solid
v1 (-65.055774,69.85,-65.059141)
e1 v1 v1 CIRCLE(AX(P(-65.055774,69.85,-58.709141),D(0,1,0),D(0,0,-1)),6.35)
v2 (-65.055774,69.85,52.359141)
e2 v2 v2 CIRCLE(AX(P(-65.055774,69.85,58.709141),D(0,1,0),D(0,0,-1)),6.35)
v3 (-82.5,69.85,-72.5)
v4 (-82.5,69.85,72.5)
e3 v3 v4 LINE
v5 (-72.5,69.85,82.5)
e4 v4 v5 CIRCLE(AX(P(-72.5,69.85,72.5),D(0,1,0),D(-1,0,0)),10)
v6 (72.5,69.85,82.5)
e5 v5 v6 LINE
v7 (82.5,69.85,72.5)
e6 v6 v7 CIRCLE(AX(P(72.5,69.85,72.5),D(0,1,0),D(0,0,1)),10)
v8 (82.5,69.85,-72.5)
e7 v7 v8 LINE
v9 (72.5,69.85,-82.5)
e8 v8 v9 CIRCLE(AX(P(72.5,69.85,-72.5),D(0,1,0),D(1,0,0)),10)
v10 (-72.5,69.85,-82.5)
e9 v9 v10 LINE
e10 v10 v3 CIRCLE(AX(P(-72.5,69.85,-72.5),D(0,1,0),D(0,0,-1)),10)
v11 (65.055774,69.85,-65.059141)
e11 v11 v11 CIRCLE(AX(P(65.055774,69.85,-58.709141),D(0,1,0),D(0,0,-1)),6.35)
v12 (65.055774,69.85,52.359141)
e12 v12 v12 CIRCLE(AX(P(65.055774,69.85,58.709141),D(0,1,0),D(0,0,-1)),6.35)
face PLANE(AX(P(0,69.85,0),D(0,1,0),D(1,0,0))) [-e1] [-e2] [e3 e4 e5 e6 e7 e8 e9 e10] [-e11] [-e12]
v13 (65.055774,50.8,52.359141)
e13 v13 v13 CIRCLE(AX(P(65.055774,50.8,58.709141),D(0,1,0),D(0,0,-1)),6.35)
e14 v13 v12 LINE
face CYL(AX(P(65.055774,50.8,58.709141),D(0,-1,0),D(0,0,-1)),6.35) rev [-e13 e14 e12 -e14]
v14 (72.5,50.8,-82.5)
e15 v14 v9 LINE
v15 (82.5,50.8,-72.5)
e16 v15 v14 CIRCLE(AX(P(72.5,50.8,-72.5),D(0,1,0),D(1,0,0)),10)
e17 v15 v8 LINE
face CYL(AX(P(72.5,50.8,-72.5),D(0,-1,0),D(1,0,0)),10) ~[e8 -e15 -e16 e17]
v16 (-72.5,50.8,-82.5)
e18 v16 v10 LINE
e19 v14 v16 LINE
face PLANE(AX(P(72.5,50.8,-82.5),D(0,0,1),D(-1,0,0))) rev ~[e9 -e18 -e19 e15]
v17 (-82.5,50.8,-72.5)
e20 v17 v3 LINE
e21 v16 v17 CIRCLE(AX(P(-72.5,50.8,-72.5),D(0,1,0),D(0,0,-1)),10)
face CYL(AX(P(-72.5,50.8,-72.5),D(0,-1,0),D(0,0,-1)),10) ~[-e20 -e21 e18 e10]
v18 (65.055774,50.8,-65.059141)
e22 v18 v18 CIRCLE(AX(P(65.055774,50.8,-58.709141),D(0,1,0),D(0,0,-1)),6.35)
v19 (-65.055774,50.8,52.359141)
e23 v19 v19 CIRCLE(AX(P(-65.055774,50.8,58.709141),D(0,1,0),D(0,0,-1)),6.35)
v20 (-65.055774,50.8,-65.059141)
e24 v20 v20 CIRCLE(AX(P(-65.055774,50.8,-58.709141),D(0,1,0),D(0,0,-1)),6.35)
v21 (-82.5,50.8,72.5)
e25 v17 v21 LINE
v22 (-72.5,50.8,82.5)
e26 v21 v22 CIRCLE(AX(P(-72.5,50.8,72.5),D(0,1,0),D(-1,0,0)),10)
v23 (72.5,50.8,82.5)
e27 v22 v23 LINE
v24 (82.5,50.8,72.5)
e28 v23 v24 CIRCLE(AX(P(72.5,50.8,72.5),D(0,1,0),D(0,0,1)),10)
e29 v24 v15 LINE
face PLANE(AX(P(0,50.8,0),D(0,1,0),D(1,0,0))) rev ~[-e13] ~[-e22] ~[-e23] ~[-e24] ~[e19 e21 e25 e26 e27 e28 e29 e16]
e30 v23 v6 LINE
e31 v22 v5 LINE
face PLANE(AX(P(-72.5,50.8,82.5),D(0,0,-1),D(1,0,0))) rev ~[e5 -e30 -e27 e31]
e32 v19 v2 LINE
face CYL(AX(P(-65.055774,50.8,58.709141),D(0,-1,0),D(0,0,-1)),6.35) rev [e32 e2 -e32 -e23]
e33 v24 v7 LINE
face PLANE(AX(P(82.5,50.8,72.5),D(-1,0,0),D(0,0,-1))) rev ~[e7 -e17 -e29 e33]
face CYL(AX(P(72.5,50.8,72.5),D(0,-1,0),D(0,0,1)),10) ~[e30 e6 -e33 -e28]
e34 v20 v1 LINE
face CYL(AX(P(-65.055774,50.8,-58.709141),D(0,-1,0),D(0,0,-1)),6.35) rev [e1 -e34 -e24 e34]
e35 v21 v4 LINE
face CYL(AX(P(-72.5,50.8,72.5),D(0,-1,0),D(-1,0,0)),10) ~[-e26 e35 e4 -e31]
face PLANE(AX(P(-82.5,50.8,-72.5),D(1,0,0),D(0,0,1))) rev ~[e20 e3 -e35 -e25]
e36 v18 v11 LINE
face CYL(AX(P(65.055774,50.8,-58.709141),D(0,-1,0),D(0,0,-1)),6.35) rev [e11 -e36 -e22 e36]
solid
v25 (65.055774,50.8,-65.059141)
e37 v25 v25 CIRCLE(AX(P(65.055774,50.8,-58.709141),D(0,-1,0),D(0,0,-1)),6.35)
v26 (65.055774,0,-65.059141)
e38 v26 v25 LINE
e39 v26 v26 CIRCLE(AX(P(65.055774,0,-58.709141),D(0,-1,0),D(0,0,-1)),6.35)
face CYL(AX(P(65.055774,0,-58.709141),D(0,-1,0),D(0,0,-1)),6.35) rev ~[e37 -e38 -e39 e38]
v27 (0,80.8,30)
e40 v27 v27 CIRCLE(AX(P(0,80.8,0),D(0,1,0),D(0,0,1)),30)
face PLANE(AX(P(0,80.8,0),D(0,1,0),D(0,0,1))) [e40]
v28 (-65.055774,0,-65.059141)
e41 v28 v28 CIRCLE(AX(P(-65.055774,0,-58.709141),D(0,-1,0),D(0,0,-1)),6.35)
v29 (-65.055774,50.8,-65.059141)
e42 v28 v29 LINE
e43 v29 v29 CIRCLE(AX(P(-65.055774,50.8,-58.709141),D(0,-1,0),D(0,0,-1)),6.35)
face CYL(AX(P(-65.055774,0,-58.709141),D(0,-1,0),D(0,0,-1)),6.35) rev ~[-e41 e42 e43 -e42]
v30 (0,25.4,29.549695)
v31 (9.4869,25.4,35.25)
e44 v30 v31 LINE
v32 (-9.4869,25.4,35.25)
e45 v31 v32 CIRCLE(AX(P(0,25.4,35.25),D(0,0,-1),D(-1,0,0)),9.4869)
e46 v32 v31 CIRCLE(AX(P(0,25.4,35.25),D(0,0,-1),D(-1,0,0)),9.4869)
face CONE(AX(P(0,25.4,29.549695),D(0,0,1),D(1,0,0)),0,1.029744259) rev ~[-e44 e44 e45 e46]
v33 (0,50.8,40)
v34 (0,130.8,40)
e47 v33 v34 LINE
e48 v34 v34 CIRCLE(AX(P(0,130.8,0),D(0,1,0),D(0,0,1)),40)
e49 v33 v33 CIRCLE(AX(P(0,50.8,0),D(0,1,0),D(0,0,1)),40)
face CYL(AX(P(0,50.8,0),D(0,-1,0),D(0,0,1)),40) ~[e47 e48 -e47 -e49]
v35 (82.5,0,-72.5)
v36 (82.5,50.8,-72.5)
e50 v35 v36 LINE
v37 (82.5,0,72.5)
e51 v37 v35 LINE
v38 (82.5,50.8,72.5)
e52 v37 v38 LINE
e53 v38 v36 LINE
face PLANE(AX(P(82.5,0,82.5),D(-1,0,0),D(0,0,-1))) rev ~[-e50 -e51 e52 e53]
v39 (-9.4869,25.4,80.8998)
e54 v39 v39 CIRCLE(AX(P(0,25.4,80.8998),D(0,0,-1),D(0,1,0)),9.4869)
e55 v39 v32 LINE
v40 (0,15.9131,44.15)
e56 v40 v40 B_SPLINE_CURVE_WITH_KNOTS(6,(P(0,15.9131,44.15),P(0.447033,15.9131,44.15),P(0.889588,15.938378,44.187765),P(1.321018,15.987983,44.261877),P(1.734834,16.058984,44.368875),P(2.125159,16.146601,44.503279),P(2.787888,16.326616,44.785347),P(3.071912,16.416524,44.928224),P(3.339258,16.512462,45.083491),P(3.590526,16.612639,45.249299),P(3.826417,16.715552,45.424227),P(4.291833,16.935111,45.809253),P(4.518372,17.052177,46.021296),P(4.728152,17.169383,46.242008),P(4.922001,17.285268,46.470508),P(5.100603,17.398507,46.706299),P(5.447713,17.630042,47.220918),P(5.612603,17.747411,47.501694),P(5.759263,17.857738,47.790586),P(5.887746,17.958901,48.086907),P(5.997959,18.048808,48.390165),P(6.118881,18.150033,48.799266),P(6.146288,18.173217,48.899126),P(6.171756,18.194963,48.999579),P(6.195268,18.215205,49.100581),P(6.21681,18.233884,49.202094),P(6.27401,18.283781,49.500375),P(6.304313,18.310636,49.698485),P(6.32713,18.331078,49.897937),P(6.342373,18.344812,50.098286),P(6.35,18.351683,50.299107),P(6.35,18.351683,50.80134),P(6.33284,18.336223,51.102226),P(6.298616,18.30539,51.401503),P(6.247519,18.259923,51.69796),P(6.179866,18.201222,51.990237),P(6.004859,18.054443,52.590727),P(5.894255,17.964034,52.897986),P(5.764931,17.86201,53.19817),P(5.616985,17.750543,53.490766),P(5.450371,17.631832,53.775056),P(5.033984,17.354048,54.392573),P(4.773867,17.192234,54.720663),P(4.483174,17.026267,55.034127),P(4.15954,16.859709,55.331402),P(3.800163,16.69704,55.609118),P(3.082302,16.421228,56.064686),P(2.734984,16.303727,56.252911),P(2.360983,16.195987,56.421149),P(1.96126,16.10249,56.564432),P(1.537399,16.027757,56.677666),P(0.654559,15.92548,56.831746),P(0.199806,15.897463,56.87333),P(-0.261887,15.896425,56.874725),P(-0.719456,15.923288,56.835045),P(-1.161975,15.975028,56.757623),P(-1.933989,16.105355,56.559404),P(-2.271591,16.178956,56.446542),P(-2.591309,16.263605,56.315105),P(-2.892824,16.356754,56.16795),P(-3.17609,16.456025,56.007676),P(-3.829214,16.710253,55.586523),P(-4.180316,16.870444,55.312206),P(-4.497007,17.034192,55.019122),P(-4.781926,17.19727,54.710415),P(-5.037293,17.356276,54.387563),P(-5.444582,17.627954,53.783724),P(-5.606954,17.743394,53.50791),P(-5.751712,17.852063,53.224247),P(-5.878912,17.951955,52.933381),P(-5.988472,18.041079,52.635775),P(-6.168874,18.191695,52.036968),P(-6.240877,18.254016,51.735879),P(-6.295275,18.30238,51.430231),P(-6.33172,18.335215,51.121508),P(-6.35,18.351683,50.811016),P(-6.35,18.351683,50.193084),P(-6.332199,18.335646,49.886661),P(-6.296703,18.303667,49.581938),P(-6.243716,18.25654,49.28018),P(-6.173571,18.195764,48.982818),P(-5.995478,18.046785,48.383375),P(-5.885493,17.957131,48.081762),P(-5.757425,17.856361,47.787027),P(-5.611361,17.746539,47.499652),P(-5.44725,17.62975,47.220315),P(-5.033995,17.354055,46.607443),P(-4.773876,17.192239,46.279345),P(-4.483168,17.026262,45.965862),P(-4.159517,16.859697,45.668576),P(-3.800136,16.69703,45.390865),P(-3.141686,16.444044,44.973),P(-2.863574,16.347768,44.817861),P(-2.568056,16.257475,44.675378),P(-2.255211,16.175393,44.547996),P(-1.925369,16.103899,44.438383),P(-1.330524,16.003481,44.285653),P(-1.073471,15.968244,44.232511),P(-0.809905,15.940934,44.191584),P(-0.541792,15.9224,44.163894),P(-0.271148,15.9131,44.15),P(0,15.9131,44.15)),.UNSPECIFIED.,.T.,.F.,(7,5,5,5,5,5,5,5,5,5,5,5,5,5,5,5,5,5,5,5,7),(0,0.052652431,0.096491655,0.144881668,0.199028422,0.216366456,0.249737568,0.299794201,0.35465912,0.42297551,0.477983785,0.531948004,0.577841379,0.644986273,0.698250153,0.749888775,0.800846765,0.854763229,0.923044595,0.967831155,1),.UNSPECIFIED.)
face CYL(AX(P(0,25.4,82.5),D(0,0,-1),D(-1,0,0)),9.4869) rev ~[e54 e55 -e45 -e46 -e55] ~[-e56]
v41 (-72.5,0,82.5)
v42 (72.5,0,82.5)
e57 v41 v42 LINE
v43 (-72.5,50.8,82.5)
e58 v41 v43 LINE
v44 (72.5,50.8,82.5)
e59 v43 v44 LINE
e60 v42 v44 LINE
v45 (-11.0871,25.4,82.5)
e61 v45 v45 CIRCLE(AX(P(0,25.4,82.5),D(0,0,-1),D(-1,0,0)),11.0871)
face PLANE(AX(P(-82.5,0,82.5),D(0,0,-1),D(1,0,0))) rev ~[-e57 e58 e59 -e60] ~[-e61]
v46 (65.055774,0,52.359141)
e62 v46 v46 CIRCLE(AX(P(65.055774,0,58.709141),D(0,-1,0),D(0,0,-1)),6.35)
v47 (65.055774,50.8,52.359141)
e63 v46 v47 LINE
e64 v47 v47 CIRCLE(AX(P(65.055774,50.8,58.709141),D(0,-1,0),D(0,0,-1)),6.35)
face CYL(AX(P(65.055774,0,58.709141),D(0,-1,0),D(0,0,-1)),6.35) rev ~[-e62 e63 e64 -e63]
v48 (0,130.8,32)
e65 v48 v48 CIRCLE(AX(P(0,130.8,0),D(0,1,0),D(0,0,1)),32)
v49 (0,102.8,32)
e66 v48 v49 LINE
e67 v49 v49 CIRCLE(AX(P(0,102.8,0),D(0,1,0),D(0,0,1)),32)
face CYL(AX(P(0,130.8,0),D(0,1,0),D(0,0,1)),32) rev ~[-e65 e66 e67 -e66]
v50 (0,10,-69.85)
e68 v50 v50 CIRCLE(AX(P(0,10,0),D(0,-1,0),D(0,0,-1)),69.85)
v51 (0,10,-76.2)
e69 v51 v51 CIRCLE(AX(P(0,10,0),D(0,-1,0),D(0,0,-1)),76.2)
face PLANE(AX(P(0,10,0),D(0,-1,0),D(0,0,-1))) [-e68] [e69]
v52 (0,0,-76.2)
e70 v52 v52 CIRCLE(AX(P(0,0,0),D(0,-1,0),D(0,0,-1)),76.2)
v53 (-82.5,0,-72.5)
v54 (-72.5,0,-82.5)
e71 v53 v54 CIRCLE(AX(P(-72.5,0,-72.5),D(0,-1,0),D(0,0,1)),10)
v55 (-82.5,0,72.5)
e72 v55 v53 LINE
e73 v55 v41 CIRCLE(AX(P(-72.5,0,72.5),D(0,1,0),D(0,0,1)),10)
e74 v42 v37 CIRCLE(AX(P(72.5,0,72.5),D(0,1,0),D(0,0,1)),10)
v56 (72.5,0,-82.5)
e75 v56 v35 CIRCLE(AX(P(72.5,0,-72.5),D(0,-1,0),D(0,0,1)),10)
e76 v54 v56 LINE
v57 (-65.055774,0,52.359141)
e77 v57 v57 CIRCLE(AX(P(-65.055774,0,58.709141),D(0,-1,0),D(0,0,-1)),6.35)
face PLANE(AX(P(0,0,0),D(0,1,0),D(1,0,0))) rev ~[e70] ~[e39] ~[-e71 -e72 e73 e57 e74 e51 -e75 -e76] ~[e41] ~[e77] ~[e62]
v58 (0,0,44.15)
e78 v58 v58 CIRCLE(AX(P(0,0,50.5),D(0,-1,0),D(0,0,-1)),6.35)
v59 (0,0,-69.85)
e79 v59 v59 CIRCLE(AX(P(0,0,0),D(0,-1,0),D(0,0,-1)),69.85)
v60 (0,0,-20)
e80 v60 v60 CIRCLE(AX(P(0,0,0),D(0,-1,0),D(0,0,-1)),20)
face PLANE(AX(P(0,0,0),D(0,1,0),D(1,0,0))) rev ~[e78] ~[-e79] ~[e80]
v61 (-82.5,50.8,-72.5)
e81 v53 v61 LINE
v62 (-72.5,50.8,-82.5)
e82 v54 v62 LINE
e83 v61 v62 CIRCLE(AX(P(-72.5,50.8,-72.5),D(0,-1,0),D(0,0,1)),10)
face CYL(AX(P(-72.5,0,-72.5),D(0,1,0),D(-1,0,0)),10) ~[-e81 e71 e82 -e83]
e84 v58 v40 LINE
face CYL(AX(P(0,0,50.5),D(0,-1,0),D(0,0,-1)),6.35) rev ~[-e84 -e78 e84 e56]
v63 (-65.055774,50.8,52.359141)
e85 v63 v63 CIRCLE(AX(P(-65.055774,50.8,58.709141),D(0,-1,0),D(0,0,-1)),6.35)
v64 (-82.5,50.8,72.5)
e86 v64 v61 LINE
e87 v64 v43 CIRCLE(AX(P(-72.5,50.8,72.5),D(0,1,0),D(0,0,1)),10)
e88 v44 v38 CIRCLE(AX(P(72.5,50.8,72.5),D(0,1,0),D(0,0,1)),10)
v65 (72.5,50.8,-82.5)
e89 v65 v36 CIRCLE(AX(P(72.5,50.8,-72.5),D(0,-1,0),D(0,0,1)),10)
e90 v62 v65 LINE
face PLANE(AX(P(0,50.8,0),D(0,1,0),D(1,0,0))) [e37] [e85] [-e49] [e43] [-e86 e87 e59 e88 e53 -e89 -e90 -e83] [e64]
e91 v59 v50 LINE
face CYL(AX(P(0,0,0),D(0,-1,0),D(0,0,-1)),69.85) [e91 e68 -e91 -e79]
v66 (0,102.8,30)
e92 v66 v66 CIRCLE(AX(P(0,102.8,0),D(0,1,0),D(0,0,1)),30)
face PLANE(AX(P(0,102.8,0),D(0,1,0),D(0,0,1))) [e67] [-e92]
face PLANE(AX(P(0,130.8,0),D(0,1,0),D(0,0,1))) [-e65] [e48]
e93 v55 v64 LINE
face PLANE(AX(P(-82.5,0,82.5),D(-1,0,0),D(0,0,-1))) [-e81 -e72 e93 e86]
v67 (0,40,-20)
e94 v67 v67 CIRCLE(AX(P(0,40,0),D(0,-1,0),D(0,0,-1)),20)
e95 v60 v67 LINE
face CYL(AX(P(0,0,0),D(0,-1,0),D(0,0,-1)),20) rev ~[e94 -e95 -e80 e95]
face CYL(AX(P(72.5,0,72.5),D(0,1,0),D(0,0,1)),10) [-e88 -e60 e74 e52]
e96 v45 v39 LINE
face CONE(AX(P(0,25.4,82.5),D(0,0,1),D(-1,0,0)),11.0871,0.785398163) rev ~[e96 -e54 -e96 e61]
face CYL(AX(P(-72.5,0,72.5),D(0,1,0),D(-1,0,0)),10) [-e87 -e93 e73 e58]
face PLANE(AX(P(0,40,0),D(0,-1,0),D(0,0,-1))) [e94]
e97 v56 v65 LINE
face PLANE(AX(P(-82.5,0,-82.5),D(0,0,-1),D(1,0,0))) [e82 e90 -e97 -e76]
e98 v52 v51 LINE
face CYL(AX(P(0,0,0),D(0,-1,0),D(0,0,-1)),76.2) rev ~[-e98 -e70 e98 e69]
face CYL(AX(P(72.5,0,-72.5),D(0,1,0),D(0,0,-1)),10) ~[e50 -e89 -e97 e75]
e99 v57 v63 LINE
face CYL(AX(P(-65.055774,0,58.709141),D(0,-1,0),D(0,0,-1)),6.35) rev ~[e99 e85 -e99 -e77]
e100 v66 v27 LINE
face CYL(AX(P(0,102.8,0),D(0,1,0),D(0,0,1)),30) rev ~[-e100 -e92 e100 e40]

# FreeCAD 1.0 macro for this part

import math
import FreeCAD as App
import Part
import Sketcher
from FreeCAD import Vector
Q = App.Units.Quantity


def edges_at(feature, points):
    """Names of the edges that pass closest to the given points."""
    edges = feature.Shape.Edges
    near = lambda p: min(range(len(edges)), key=lambda i: edges[i].distToShape(Part.Vertex(*p))[0])
    return sorted({f"Edge{near(p) + 1}" for p in points})


def add_polygon(sketch, points):
    """Adds a closed chain of lines whose ends are joined by coincident constraints."""
    first, n = sketch.GeometryCount, len(points)
    for a, b in zip(points, points[1:] + points[:1]):
        sketch.addGeometry(Part.LineSegment(App.Vector(*a, 0), App.Vector(*b, 0)), False)
    for i in range(n):
        sketch.addConstraint(Sketcher.Constraint("Coincident", first + i, 2, first + (i + 1) % n, 1))

doc = App.newDocument("Part")
body = doc.addObject("PartDesign::Body", "Body")

# Sketch on XZ plane
sketch1 = body.newObject("Sketcher::SketchObject", "Sketch")
sketch1.AttachmentSupport = (doc.getObject("XZ_Plane"), [""])
sketch1.MapMode = "FlatFace"
add_polygon(sketch1, [(-82, -82), (-82, 82), (82, 82), (82, -82)])  # lines 0-3
sketch1.addConstraint([
    Sketcher.Constraint("Vertical", 0),
    Sketcher.Constraint("Horizontal", 1),
    Sketcher.Constraint("Vertical", 2),
    Sketcher.Constraint("Horizontal", 3),
    Sketcher.Constraint("Symmetric", 0, 2, 2, 2, -1, 1),
    Sketcher.Constraint("Equal", 3, 0),
    Sketcher.Constraint("DistanceX", 1, 1, 1, 2, Q("165 mm")),
])
pad1 = body.newObject("PartDesign::Pad", "Pad")
pad1.Profile = sketch1
pad1.Length = 50.8
pad1.Reversed = True

# Sketch on XZ plane
sketch2 = body.newObject("Sketcher::SketchObject", "Sketch001")
sketch2.AttachmentSupport = (doc.getObject("XZ_Plane"), [""])
sketch2.MapMode = "FlatFace"
sketch2.AttachmentOffset = App.Placement(Vector(0, 0, -50.8), App.Rotation())
sketch2.addGeometry(Part.Circle(Vector(0, 0, 0), Vector(0, 0, 1), 40), False)
sketch2.addConstraint([
    Sketcher.Constraint("Coincident", 0, 3, -1, 1),
    Sketcher.Constraint("Diameter", 0, Q("80 mm")),
])
pad2 = body.newObject("PartDesign::Pad", "Pad001")
pad2.Profile = sketch2
pad2.Length = 80
pad2.Reversed = True

# Sketch on XZ plane
sketch3 = body.newObject("Sketcher::SketchObject", "Sketch002")
sketch3.AttachmentSupport = (doc.getObject("XZ_Plane"), [""])
sketch3.MapMode = "FlatFace"
sketch3.AttachmentOffset = App.Placement(Vector(0, 0, -130.8), App.Rotation())
sketch3.addGeometry(Part.Circle(Vector(0, 0, 0), Vector(0, 0, 1), 32), False)
sketch3.addConstraint([
    Sketcher.Constraint("Coincident", 0, 3, -1, 1),
    Sketcher.Constraint("Diameter", 0, Q("64 mm")),
])
pocket1 = body.newObject("PartDesign::Pocket", "Pocket")
pocket1.Profile = sketch3
pocket1.Length = 28
pocket1.Reversed = True

# Sketch on XZ plane
sketch4 = body.newObject("Sketcher::SketchObject", "Sketch003")
sketch4.AttachmentSupport = (doc.getObject("XZ_Plane"), [""])
sketch4.MapMode = "FlatFace"
sketch4.AttachmentOffset = App.Placement(Vector(0, 0, -102.8), App.Rotation())
sketch4.addGeometry(Part.Circle(Vector(0, 0, 0), Vector(0, 0, 1), 30), False)
sketch4.addConstraint([
    Sketcher.Constraint("Coincident", 0, 3, -1, 1),
    Sketcher.Constraint("Diameter", 0, Q("60 mm")),
])
pocket2 = body.newObject("PartDesign::Pocket", "Pocket001")
pocket2.Profile = sketch4
pocket2.Length = 22
pocket2.Reversed = True
doc.recompute()

fillet = body.newObject("PartDesign::Fillet", "Fillet")
fillet.Base = (pocket2, edges_at(pocket2, [
    (82.5, 25.4, 82.5),
    (-82.5, 25.4, 82.5),
    (-82.5, 25.4, -82.5),
    (82.5, 25.4, -82.5),
]))
fillet.Radius = 10

# Sketch on XZ plane
sketch5 = body.newObject("Sketcher::SketchObject", "Sketch004")
sketch5.AttachmentSupport = (doc.getObject("XZ_Plane"), [""])
sketch5.MapMode = "FlatFace"
sketch5.addGeometry(Part.Circle(Vector(0, 0, 0), Vector(0, 0, 1), 20), False)
sketch5.addConstraint([
    Sketcher.Constraint("Coincident", 0, 3, -1, 1),
    Sketcher.Constraint("Diameter", 0, Q("40 mm")),
])
pocket3 = body.newObject("PartDesign::Pocket", "Pocket002")
pocket3.Profile = sketch5
pocket3.Length = 40

# Sketch on XZ plane
sketch6 = body.newObject("Sketcher::SketchObject", "Sketch005")
sketch6.AttachmentSupport = (doc.getObject("XZ_Plane"), [""])
sketch6.MapMode = "FlatFace"
sketch6.addGeometry([
    Part.Circle(Vector(0, 0, 0), Vector(0, 0, 1), 76),
    Part.Circle(Vector(0, 0, 0), Vector(0, 0, 1), 70),
], False)
sketch6.addConstraint([
    Sketcher.Constraint("Coincident", 0, 3, -1, 1),
    Sketcher.Constraint("Coincident", 1, 3, -1, 1),
    Sketcher.Constraint("Diameter", 0, Q("152.4 mm")),
    Sketcher.Constraint("Diameter", 1, Q("139.7 mm")),
])
pocket4 = body.newObject("PartDesign::Pocket", "Pocket003")
pocket4.Profile = sketch6
pocket4.Length = 10

# Sketch on XY plane
sketch7 = body.newObject("Sketcher::SketchObject", "Sketch006")
sketch7.AttachmentSupport = (doc.getObject("XY_Plane"), [""])
sketch7.MapMode = "FlatFace"
sketch7.AttachmentOffset = App.Placement(Vector(0, 0, 82.5), App.Rotation())
sketch7.addGeometry(Part.Circle(Vector(0, 25, 0), Vector(0, 0, 1), 9), False)
sketch7.addConstraint([
    Sketcher.Constraint("PointOnObject", 0, 3, -2),
    Sketcher.Constraint("Diameter", 0, Q("18.9738 mm")),
    Sketcher.Constraint("DistanceY", -1, 1, 0, 3, Q("25.4 mm")),
])
doc.recompute()
hole = body.newObject("PartDesign::Hole", "Hole")
hole.Profile = sketch7
hole.ThreadType = "None"
hole.Diameter = 18.9738
hole.DepthType = "Dimension"
hole.Depth = 47.25
hole.DrillPoint = "Angled"
hole.DrillPointAngle = 118
hole.HoleCutType = "Countersink"
hole.HoleCutDiameter = 22.1742
hole.HoleCutCountersinkAngle = 90

# Sketch on XZ plane
sketch8 = body.newObject("Sketcher::SketchObject", "Sketch007")
sketch8.AttachmentSupport = (doc.getObject("XZ_Plane"), [""])
sketch8.MapMode = "FlatFace"
sketch8.addGeometry(Part.Circle(Vector(0, 50, 0), Vector(0, 0, 1), 6), False)
sketch8.addConstraint([
    Sketcher.Constraint("PointOnObject", 0, 3, -2),
    Sketcher.Constraint("Diameter", 0, Q("12.7 mm")),
    Sketcher.Constraint("DistanceY", -1, 1, 0, 3, Q("50.5 mm")),
])
pocket5 = body.newObject("PartDesign::Pocket", "Pocket004")
pocket5.Profile = sketch8
pocket5.Length = 25

# Sketch on XZ plane
sketch9 = body.newObject("Sketcher::SketchObject", "Sketch008")
sketch9.AttachmentSupport = (doc.getObject("XZ_Plane"), [""])
sketch9.MapMode = "FlatFace"
sketch9.addGeometry([
    Part.Circle(Vector(-65, 59, 0), Vector(0, 0, 1), 6),
    Part.Circle(Vector(-65, -59, 0), Vector(0, 0, 1), 6),
    Part.Circle(Vector(65, -59, 0), Vector(0, 0, 1), 6),
    Part.Circle(Vector(65, 59, 0), Vector(0, 0, 1), 6),
], False)
sketch9.addConstraint([
    Sketcher.Constraint("Equal", 0, 1),
    Sketcher.Constraint("Equal", 1, 2),
    Sketcher.Constraint("Equal", 2, 3),
    Sketcher.Constraint("Symmetric", 0, 3, 2, 3, -1, 1),
    Sketcher.Constraint("Symmetric", 1, 3, 3, 3, -1, 1),
    Sketcher.Constraint("Symmetric", 1, 3, 2, 3, -2),
    Sketcher.Constraint("Diameter", 0, Q("12.7 mm")),
    Sketcher.Constraint("DistanceY", -1, 1, 0, 3, Q("58.709141 mm")),
    Sketcher.Constraint("DistanceX", 0, 3, -1, 1, Q("65.055774 mm")),
])
pocket6 = body.newObject("PartDesign::Pocket", "Pocket005")
pocket6.Profile = sketch9
pocket6.Type = "ThroughAll"
body2 = doc.addObject("PartDesign::Body", "Body001")

# Sketch on XZ plane
sketch10 = body2.newObject("Sketcher::SketchObject", "Sketch009")
sketch10.AttachmentSupport = (doc.getObject("XZ_Plane001"), [""])
sketch10.MapMode = "FlatFace"
sketch10.AttachmentOffset = App.Placement(Vector(0, 0, -50.8), App.Rotation())
sketch10.addGeometry([
    Part.LineSegment(Vector(-72, 82, 0), Vector(72, 82, 0)),  # 0
    Part.ArcOfCircle(Part.Circle(Vector(72, 72, 0), Vector(0, 0, 1), 10), math.radians(0), math.radians(90)),  # 1
    Part.LineSegment(Vector(82, 72, 0), Vector(82, -72, 0)),  # 2
    Part.ArcOfCircle(Part.Circle(Vector(72, -72, 0), Vector(0, 0, 1), 10), math.radians(-90), math.radians(0)),  # 3
    Part.LineSegment(Vector(72, -82, 0), Vector(-72, -82, 0)),  # 4
    Part.ArcOfCircle(Part.Circle(Vector(-72, -72, 0), Vector(0, 0, 1), 10), math.radians(180), math.radians(270)),  # 5
    Part.LineSegment(Vector(-82, -72, 0), Vector(-82, 72, 0)),  # 6
    Part.ArcOfCircle(Part.Circle(Vector(-72, 72, 0), Vector(0, 0, 1), 10), math.radians(90), math.radians(180)),  # 7
    Part.Circle(Vector(-65, 59, 0), Vector(0, 0, 1), 6),  # 8
    Part.Circle(Vector(65, 59, 0), Vector(0, 0, 1), 6),  # 9
    Part.Circle(Vector(-65, -59, 0), Vector(0, 0, 1), 6),  # 10
    Part.Circle(Vector(65, -59, 0), Vector(0, 0, 1), 6),  # 11
], False)
sketch10.addConstraint([
    Sketcher.Constraint("Tangent", 0, 2, 1, 2),
    Sketcher.Constraint("Tangent", 1, 1, 2, 1),
    Sketcher.Constraint("Tangent", 2, 2, 3, 2),
    Sketcher.Constraint("Tangent", 3, 1, 4, 1),
    Sketcher.Constraint("Tangent", 4, 2, 5, 2),
    Sketcher.Constraint("Tangent", 5, 1, 6, 1),
    Sketcher.Constraint("Tangent", 6, 2, 7, 2),
    Sketcher.Constraint("Tangent", 7, 1, 0, 1),
    Sketcher.Constraint("Horizontal", 0),
    Sketcher.Constraint("Vertical", 2),
    Sketcher.Constraint("Horizontal", 4),
    Sketcher.Constraint("Vertical", 6),
    Sketcher.Constraint("Equal", 1, 3),
    Sketcher.Constraint("Equal", 3, 5),
    Sketcher.Constraint("Equal", 5, 7),
    Sketcher.Constraint("Equal", 8, 9),
    Sketcher.Constraint("Equal", 9, 10),
    Sketcher.Constraint("Equal", 10, 11),
    Sketcher.Constraint("Symmetric", 1, 3, 5, 3, -1, 1),
    Sketcher.Constraint("Symmetric", 9, 3, 10, 3, -1, 1),
    Sketcher.Constraint("Symmetric", 8, 3, 11, 3, -1, 1),
    Sketcher.Constraint("Symmetric", 8, 3, 9, 3, -2),
    Sketcher.Constraint("Equal", 4, 2),
    Sketcher.Constraint("Radius", 1, Q("10 mm")),
    Sketcher.Constraint("Diameter", 8, Q("12.7 mm")),
    Sketcher.Constraint("DistanceX", 0, 1, 0, 2, Q("145 mm")),
    Sketcher.Constraint("DistanceY", -1, 1, 8, 3, Q("58.709141 mm")),
    Sketcher.Constraint("DistanceX", 8, 3, -1, 1, Q("65.055774 mm")),
])
pad3 = body2.newObject("PartDesign::Pad", "Pad002")
pad3.Profile = sketch10
pad3.Length = 19.05
pad3.Reversed = True

doc.recompute()
